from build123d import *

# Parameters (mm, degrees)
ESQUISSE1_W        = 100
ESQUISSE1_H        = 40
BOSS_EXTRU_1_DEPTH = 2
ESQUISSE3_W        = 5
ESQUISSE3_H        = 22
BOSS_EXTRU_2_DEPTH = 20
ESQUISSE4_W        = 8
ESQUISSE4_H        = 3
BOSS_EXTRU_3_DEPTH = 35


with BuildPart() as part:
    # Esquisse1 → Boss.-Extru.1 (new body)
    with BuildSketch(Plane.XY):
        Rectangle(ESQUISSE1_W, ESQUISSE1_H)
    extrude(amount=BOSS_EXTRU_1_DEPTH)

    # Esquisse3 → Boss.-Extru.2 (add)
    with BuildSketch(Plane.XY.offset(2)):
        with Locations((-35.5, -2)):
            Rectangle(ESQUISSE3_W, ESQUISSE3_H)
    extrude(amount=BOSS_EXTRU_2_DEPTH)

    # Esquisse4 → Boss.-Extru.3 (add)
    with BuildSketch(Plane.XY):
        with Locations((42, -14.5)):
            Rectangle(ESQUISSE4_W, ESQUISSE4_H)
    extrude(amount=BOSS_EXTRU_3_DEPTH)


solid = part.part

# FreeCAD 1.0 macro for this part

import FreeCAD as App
import Part
import Sketcher
from FreeCAD import Vector
Q = App.Units.Quantity

doc = App.newDocument("Part")
body = doc.addObject("PartDesign::Body", "Body")

sketch1 = body.newObject("Sketcher::SketchObject", "Sketch")
sketch1.AttachmentSupport = (doc.getObject("XY_Plane"), [""])
sketch1.MapMode = "FlatFace"
sketch1.addGeometry(Part.LineSegment(Vector(-50, 20, 0), Vector(-50, -20, 0)), False)
sketch1.addGeometry(Part.LineSegment(Vector(-50, -20, 0), Vector(50, -20, 0)), False)
sketch1.addGeometry(Part.LineSegment(Vector(50, -20, 0), Vector(50, 20, 0)), False)
sketch1.addGeometry(Part.LineSegment(Vector(50, 20, 0), Vector(-50, 20, 0)), False)
sketch1.addConstraint(Sketcher.Constraint("Coincident", 0, 2, 1, 1))
sketch1.addConstraint(Sketcher.Constraint("Coincident", 1, 2, 2, 1))
sketch1.addConstraint(Sketcher.Constraint("Coincident", 2, 2, 3, 1))
sketch1.addConstraint(Sketcher.Constraint("Coincident", 3, 2, 0, 1))
sketch1.addConstraint(Sketcher.Constraint("Vertical", 0))
sketch1.addConstraint(Sketcher.Constraint("Horizontal", 1))
sketch1.addConstraint(Sketcher.Constraint("Vertical", 2))
sketch1.addConstraint(Sketcher.Constraint("Horizontal", 3))
sketch1.addConstraint(Sketcher.Constraint("Symmetric", 0, 2, 2, 2, -1, 1))
sketch1.addConstraint(Sketcher.Constraint("DistanceX", 1, 1, 1, 2, Q("100 mm")))
sketch1.addConstraint(Sketcher.Constraint("DistanceY", 0, 2, 0, 1, Q("40 mm")))
pad1 = body.newObject("PartDesign::Pad", "Pad")
pad1.Profile = sketch1
pad1.Length = 2

sketch2 = body.newObject("Sketcher::SketchObject", "Sketch001")
sketch2.AttachmentSupport = (doc.getObject("XY_Plane"), [""])
sketch2.MapMode = "FlatFace"
sketch2.AttachmentOffset = App.Placement(Vector(0, 0, 2), App.Rotation())
sketch2.addGeometry(Part.LineSegment(Vector(-38, 9, 0), Vector(-38, -13, 0)), False)
sketch2.addGeometry(Part.LineSegment(Vector(-38, -13, 0), Vector(-33, -13, 0)), False)
sketch2.addGeometry(Part.LineSegment(Vector(-33, -13, 0), Vector(-33, 9, 0)), False)
sketch2.addGeometry(Part.LineSegment(Vector(-33, 9, 0), Vector(-38, 9, 0)), False)
sketch2.addConstraint(Sketcher.Constraint("Coincident", 0, 2, 1, 1))
sketch2.addConstraint(Sketcher.Constraint("Coincident", 1, 2, 2, 1))
sketch2.addConstraint(Sketcher.Constraint("Coincident", 2, 2, 3, 1))
sketch2.addConstraint(Sketcher.Constraint("Coincident", 3, 2, 0, 1))
sketch2.addConstraint(Sketcher.Constraint("Vertical", 0))
sketch2.addConstraint(Sketcher.Constraint("Horizontal", 1))
sketch2.addConstraint(Sketcher.Constraint("Vertical", 2))
sketch2.addConstraint(Sketcher.Constraint("Horizontal", 3))
sketch2.addConstraint(Sketcher.Constraint("DistanceX", 1, 1, 1, 2, Q("5 mm")))
sketch2.addConstraint(Sketcher.Constraint("DistanceY", 0, 2, 0, 1, Q("22 mm")))
sketch2.addConstraint(Sketcher.Constraint("DistanceX", 0, 2, -1, 1, Q("38 mm")))
sketch2.addConstraint(Sketcher.Constraint("DistanceY", 0, 2, -1, 1, Q("13 mm")))
pad2 = body.newObject("PartDesign::Pad", "Pad001")
pad2.Profile = sketch2
pad2.Length = 20

sketch3 = body.newObject("Sketcher::SketchObject", "Sketch002")
sketch3.AttachmentSupport = (doc.getObject("XY_Plane"), [""])
sketch3.MapMode = "FlatFace"
sketch3.addGeometry(Part.LineSegment(Vector(38, -13, 0), Vector(38, -16, 0)), False)
sketch3.addGeometry(Part.LineSegment(Vector(38, -16, 0), Vector(46, -16, 0)), False)
sketch3.addGeometry(Part.LineSegment(Vector(46, -16, 0), Vector(46, -13, 0)), False)
sketch3.addGeometry(Part.LineSegment(Vector(46, -13, 0), Vector(38, -13, 0)), False)
sketch3.addConstraint(Sketcher.Constraint("Coincident", 0, 2, 1, 1))
sketch3.addConstraint(Sketcher.Constraint("Coincident", 1, 2, 2, 1))
sketch3.addConstraint(Sketcher.Constraint("Coincident", 2, 2, 3, 1))
sketch3.addConstraint(Sketcher.Constraint("Coincident", 3, 2, 0, 1))
sketch3.addConstraint(Sketcher.Constraint("Vertical", 0))
sketch3.addConstraint(Sketcher.Constraint("Horizontal", 1))
sketch3.addConstraint(Sketcher.Constraint("Vertical", 2))
sketch3.addConstraint(Sketcher.Constraint("Horizontal", 3))
sketch3.addConstraint(Sketcher.Constraint("DistanceX", 1, 1, 1, 2, Q("8 mm")))
sketch3.addConstraint(Sketcher.Constraint("DistanceY", 0, 2, 0, 1, Q("3 mm")))
sketch3.addConstraint(Sketcher.Constraint("DistanceX", -1, 1, 0, 2, Q("38 mm")))
sketch3.addConstraint(Sketcher.Constraint("DistanceY", 0, 2, -1, 1, Q("16 mm")))
pad3 = body.newObject("PartDesign::Pad", "Pad002")
pad3.Profile = sketch3
pad3.Length = 35

doc.recompute()
